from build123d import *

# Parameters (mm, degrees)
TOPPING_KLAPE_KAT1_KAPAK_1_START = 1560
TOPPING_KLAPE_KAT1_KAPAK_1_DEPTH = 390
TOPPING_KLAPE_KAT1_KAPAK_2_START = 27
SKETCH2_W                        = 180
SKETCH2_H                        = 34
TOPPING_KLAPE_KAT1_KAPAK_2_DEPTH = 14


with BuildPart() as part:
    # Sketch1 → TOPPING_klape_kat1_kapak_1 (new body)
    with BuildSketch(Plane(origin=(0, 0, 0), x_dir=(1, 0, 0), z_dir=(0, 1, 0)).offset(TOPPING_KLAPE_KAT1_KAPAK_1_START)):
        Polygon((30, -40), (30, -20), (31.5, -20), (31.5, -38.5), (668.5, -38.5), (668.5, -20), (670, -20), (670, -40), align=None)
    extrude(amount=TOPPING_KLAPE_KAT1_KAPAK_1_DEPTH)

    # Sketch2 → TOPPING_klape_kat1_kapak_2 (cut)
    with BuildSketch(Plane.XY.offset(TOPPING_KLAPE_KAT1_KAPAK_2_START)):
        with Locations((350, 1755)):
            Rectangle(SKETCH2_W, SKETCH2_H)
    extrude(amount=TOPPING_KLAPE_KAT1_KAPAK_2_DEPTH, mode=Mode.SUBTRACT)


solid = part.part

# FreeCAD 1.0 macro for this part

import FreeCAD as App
import Part
import Sketcher
from FreeCAD import Vector
Q = App.Units.Quantity


def add_polygon(sketch, points):
    """Adds a closed chain of lines whose ends are joined by coincident constraints."""
    first, n = sketch.GeometryCount, len(points)
    for a, b in zip(points, points[1:] + points[:1]):
        sketch.addGeometry(Part.LineSegment(App.Vector(*a, 0), App.Vector(*b, 0)), False)
    for i in range(n):
        sketch.addConstraint(Sketcher.Constraint("Coincident", first + i, 2, first + (i + 1) % n, 1))

doc = App.newDocument("Part")
body = doc.addObject("PartDesign::Body", "Body")

# Sketch on XZ plane
sketch1 = body.newObject("Sketcher::SketchObject", "Sketch")
sketch1.AttachmentSupport = (doc.getObject("XZ_Plane"), [""])
sketch1.MapMode = "FlatFace"
sketch1.AttachmentOffset = App.Placement(Vector(0, 0, -1560), App.Rotation())
add_polygon(sketch1, [(30, 20), (30, 40), (670, 40), (670, 20), (668.5, 20), (668.5, 38.5), (31.5, 38.5), (31.5, 20)])  # lines 0-7
sketch1.addConstraint([
    Sketcher.Constraint("Vertical", 0),
    Sketcher.Constraint("Horizontal", 1),
    Sketcher.Constraint("Vertical", 2),
    Sketcher.Constraint("Horizontal", 3),
    Sketcher.Constraint("Vertical", 4),
    Sketcher.Constraint("Horizontal", 5),
    Sketcher.Constraint("Vertical", 6),
    Sketcher.Constraint("Horizontal", 7),
    Sketcher.Constraint("Horizontal", 3, 2, 6, 2),
    Sketcher.Constraint("Equal", 3, 7),
    Sketcher.Constraint("DistanceX", 1, 1, 1, 2, Q("640 mm")),
    Sketcher.Constraint("DistanceX", 5, 2, 5, 1, Q("637 mm")),
    Sketcher.Constraint("DistanceY", 0, 1, 0, 2, Q("20 mm")),
    Sketcher.Constraint("DistanceY", 4, 1, 4, 2, Q("18.5 mm")),
    Sketcher.Constraint("DistanceX", -1, 1, 0, 2, Q("30 mm")),
    Sketcher.Constraint("DistanceY", -1, 1, 0, 2, Q("40 mm")),
])
pad1 = body.newObject("PartDesign::Pad", "Pad")
pad1.Profile = sketch1
pad1.Length = 390
pad1.Reversed = True

# Sketch on XY plane
sketch2 = body.newObject("Sketcher::SketchObject", "Sketch001")
sketch2.AttachmentSupport = (doc.getObject("XY_Plane"), [""])
sketch2.MapMode = "FlatFace"
sketch2.AttachmentOffset = App.Placement(Vector(0, 0, 27), App.Rotation())
add_polygon(sketch2, [(260, 1772), (260, 1738), (440, 1738), (440, 1772)])  # lines 0-3
sketch2.addConstraint([
    Sketcher.Constraint("Vertical", 0),
    Sketcher.Constraint("Horizontal", 1),
    Sketcher.Constraint("Vertical", 2),
    Sketcher.Constraint("Horizontal", 3),
    Sketcher.Constraint("DistanceX", 1, 1, 1, 2, Q("180 mm")),
    Sketcher.Constraint("DistanceY", 0, 2, 0, 1, Q("34 mm")),
    Sketcher.Constraint("DistanceX", -1, 1, 0, 2, Q("260 mm")),
    Sketcher.Constraint("DistanceY", -1, 1, 0, 2, Q("1738 mm")),
])
pocket1 = body.newObject("PartDesign::Pocket", "Pocket")
pocket1.Profile = sketch2
pocket1.Length = 14
pocket1.Reversed = True

doc.recompute()
